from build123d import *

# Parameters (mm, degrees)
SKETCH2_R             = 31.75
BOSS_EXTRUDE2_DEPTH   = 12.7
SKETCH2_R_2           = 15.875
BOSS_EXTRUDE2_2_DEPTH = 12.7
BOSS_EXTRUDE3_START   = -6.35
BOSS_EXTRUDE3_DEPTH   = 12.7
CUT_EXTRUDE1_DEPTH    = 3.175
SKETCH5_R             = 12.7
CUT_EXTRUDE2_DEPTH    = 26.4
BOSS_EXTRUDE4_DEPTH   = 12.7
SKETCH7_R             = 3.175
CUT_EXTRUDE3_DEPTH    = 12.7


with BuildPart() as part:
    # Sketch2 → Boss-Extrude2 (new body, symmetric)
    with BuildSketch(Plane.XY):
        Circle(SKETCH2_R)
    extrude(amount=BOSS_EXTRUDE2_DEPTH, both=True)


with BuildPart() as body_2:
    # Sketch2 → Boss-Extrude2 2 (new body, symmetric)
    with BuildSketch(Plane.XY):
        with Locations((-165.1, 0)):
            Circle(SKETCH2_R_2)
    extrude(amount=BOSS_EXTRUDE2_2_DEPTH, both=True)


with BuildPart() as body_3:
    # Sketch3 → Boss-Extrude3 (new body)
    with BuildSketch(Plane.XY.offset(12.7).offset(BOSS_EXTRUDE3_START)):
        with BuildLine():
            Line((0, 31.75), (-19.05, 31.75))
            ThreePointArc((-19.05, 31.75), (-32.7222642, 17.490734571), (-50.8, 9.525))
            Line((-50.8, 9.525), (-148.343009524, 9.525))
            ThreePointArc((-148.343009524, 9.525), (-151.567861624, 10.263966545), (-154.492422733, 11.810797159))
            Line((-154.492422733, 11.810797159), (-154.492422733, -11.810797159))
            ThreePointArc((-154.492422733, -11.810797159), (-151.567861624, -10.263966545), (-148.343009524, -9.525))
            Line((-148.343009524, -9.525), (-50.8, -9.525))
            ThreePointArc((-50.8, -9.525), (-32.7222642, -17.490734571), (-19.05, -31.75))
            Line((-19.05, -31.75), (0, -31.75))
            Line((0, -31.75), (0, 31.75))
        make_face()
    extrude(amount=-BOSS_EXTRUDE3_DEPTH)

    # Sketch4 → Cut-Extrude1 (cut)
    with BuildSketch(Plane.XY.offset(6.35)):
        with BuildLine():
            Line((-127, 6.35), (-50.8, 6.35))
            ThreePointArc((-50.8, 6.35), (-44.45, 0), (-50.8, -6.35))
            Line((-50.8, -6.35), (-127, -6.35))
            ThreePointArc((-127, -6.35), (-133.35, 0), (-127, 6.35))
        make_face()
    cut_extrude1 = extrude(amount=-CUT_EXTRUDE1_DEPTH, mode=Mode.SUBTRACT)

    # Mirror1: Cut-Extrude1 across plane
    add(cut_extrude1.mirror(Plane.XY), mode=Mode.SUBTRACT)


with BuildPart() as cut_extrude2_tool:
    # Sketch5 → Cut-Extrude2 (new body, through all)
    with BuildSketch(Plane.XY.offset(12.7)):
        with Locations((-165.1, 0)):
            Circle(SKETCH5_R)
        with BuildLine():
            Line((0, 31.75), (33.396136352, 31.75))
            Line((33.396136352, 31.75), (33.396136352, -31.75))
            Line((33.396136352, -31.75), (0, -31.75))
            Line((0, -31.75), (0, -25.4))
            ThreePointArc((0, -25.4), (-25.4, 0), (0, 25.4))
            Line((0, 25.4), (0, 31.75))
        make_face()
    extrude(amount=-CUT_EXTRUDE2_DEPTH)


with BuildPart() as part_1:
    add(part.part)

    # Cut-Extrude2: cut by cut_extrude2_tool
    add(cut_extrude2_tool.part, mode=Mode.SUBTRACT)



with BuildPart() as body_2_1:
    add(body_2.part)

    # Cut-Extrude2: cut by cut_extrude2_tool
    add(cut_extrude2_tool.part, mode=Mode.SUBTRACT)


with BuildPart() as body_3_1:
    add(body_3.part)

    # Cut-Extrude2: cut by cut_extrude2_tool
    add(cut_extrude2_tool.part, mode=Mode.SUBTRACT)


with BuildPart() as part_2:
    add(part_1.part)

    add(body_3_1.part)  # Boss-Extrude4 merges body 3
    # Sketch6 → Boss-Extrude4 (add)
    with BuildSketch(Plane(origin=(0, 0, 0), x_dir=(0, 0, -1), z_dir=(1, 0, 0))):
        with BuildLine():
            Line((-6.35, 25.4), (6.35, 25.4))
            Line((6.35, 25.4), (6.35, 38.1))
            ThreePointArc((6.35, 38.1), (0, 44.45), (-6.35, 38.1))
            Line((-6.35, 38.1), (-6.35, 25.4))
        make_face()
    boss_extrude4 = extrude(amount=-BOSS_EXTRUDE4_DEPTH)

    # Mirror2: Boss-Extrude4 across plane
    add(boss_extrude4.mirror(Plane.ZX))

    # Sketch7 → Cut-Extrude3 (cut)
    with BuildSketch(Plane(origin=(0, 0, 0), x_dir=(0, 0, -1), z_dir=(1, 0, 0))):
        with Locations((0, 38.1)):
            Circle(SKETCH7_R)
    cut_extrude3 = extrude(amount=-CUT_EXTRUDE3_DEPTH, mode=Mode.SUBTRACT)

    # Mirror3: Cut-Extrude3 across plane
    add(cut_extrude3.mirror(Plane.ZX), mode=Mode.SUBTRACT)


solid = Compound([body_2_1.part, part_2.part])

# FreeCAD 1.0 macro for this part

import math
import FreeCAD as App
import Part
import Sketcher

V = App.Vector
Q = App.Units.Quantity

doc = App.newDocument("Part")
body = doc.addObject("PartDesign::Body", "Body")

# Sketch on XY plane
sketch1 = body.newObject("Sketcher::SketchObject", "Sketch")
sketch1.AttachmentSupport = (doc.getObject("XY_Plane"), [""])
sketch1.MapMode = "FlatFace"
sketch1.addGeometry(Part.Circle(V(0, 0, 0), V(0, 0, 1), 32), False)
sketch1.addConstraint(Sketcher.Constraint("Coincident", 0, 3, -1, 1))
sketch1.addConstraint(Sketcher.Constraint("Diameter", 0, Q("2.5 in")))
pad1 = body.newObject("PartDesign::Pad", "Pad")
pad1.Profile = sketch1
pad1.Length = Q("1 in")
pad1.Midplane = True
body2 = doc.addObject("PartDesign::Body", "Body001")

# Sketch on XY plane
sketch2 = body2.newObject("Sketcher::SketchObject", "Sketch001")
sketch2.AttachmentSupport = (doc.getObject("XY_Plane001"), [""])
sketch2.MapMode = "FlatFace"
sketch2.addGeometry(Part.Circle(V(-165, 0, 0), V(0, 0, 1), 16), False)
sketch2.addConstraint(Sketcher.Constraint("PointOnObject", 0, 3, -1))
sketch2.addConstraint(Sketcher.Constraint("Diameter", 0, Q("1.25 in")))
sketch2.addConstraint(Sketcher.Constraint("DistanceX", 0, 3, -1, 1, Q("6.5 in")))
pad2 = body2.newObject("PartDesign::Pad", "Pad001")
pad2.Profile = sketch2
pad2.Length = Q("1 in")
pad2.Midplane = True
body3 = doc.addObject("PartDesign::Body", "Body002")

# Sketch on XY plane
sketch3 = body3.newObject("Sketcher::SketchObject", "Sketch002")
sketch3.AttachmentSupport = (doc.getObject("XY_Plane002"), [""])
sketch3.MapMode = "FlatFace"
sketch3.AttachmentOffset = App.Placement(V(0, 0, 0.25 * 25.4), App.Rotation())
sketch3.addGeometry(Part.LineSegment(V(0, 32, 0), V(-19, 32, 0)), False)
sketch3.addGeometry(Part.ArcOfCircle(Part.Circle(V(-62, 59, 0), V(0, 0, 1), 51), math.radians(-77), math.radians(-33)), False)
sketch3.addGeometry(Part.LineSegment(V(-51, 10, 0), V(-148, 10, 0)), False)
sketch3.addGeometry(Part.ArcOfCircle(Part.Circle(V(-147, 22, 0), V(0, 0, 1), 13), math.radians(-125), math.radians(-95)), False)
sketch3.addGeometry(Part.LineSegment(V(-154, 12, 0), V(-154, -12, 0)), False)
sketch3.addGeometry(Part.ArcOfCircle(Part.Circle(V(-147, -22, 0), V(0, 0, 1), 13), math.radians(95), math.radians(125)), False)
sketch3.addGeometry(Part.LineSegment(V(-148, -10, 0), V(-51, -10, 0)), False)
sketch3.addGeometry(Part.ArcOfCircle(Part.Circle(V(-62, -59, 0), V(0, 0, 1), 51), math.radians(33), math.radians(77)), False)
sketch3.addGeometry(Part.LineSegment(V(-19, -32, 0), V(0, -32, 0)), False)
sketch3.addGeometry(Part.LineSegment(V(0, -32, 0), V(0, 32, 0)), False)
sketch3.addConstraint(Sketcher.Constraint("Coincident", 0, 2, 1, 2))
sketch3.addConstraint(Sketcher.Constraint("Coincident", 1, 1, 2, 1))
sketch3.addConstraint(Sketcher.Constraint("Coincident", 2, 2, 3, 2))
sketch3.addConstraint(Sketcher.Constraint("Coincident", 3, 1, 4, 1))
sketch3.addConstraint(Sketcher.Constraint("Coincident", 4, 2, 5, 2))
sketch3.addConstraint(Sketcher.Constraint("Coincident", 5, 1, 6, 1))
sketch3.addConstraint(Sketcher.Constraint("Coincident", 6, 2, 7, 2))
sketch3.addConstraint(Sketcher.Constraint("Coincident", 7, 1, 8, 1))
sketch3.addConstraint(Sketcher.Constraint("Coincident", 8, 2, 9, 1))
sketch3.addConstraint(Sketcher.Constraint("Coincident", 9, 2, 0, 1))
sketch3.addConstraint(Sketcher.Constraint("Horizontal", 0))
sketch3.addConstraint(Sketcher.Constraint("Horizontal", 2))
sketch3.addConstraint(Sketcher.Constraint("Vertical", 4))
sketch3.addConstraint(Sketcher.Constraint("Horizontal", 6))
sketch3.addConstraint(Sketcher.Constraint("Horizontal", 8))
sketch3.addConstraint(Sketcher.Constraint("Vertical", 9))
sketch3.addConstraint(Sketcher.Constraint("Equal", 3, 5))
sketch3.addConstraint(Sketcher.Constraint("Equal", 1, 7))
sketch3.addConstraint(Sketcher.Constraint("Symmetric", 8, 2, 9, 2, -1, 1))
sketch3.addConstraint(Sketcher.Constraint("Symmetric", 3, 3, 5, 3, -1))
sketch3.addConstraint(Sketcher.Constraint("Symmetric", 1, 3, 7, 3, -1))
sketch3.addConstraint(Sketcher.Constraint("Vertical", 2, 2, 5, 1))
sketch3.addConstraint(Sketcher.Constraint("Radius", 1, Q("2 in")))
sketch3.addConstraint(Sketcher.Constraint("Radius", 3, Q("0.5 in")))
sketch3.addConstraint(Sketcher.Constraint("DistanceY", 9, 1, 9, 2, Q("2.5 in")))
sketch3.addConstraint(Sketcher.Constraint("DistanceX", 1, 1, -1, 1, Q("2 in")))
sketch3.addConstraint(Sketcher.Constraint("DistanceX", 0, 2, 0, 1, Q("0.75 in")))
sketch3.addConstraint(Sketcher.Constraint("DistanceY", 5, 1, 2, 2, Q("0.75 in")))
sketch3.addConstraint(Sketcher.Constraint("DistanceX", 2, 2, 2, 1, 97.54301))
sketch3.addConstraint(Sketcher.Constraint("DistanceX", 3, 3, 1, 3, 85.2888))
sketch3.addConstraint(Sketcher.Constraint("DistanceY", 4, 2, 4, 1, 23.621594))
pad3 = body3.newObject("PartDesign::Pad", "Pad002")
pad3.Profile = sketch3
pad3.Length = Q("0.5 in")
pad3.Reversed = True

# Sketch on XY plane
sketch4 = body3.newObject("Sketcher::SketchObject", "Sketch003")
sketch4.AttachmentSupport = (doc.getObject("XY_Plane002"), [""])
sketch4.MapMode = "FlatFace"
sketch4.AttachmentOffset = App.Placement(V(0, 0, 0.25 * 25.4), App.Rotation())
sketch4.addGeometry(Part.LineSegment(V(-51, 6, 0), V(-127, 6, 0)), False)
sketch4.addGeometry(Part.ArcOfCircle(Part.Circle(V(-127, 0, 0), V(0, 0, 1), 6), math.radians(90), math.radians(270)), False)
sketch4.addGeometry(Part.LineSegment(V(-127, -6, 0), V(-51, -6, 0)), False)
sketch4.addGeometry(Part.ArcOfCircle(Part.Circle(V(-51, 0, 0), V(0, 0, 1), 6), math.radians(-90), math.radians(90)), False)
sketch4.addConstraint(Sketcher.Constraint("Tangent", 0, 2, 1, 1))
sketch4.addConstraint(Sketcher.Constraint("Tangent", 1, 2, 2, 1))
sketch4.addConstraint(Sketcher.Constraint("Tangent", 2, 2, 3, 1))
sketch4.addConstraint(Sketcher.Constraint("Tangent", 3, 2, 0, 1))
sketch4.addConstraint(Sketcher.Constraint("Horizontal", 0))
sketch4.addConstraint(Sketcher.Constraint("Horizontal", 2))
sketch4.addConstraint(Sketcher.Constraint("PointOnObject", 1, 3, -1))
sketch4.addConstraint(Sketcher.Constraint("DistanceX", 0, 2, 0, 1, Q("3 in")))
sketch4.addConstraint(Sketcher.Constraint("Radius", 1, Q("0.25 in")))
sketch4.addConstraint(Sketcher.Constraint("DistanceX", 1, 3, -1, 1, Q("5 in")))
pocket1 = body3.newObject("PartDesign::Pocket", "Pocket")
pocket1.Profile = sketch4
pocket1.Length = Q("0.125 in")
doc.recompute()

mirrored = body3.newObject("PartDesign::Mirrored", "Mirrored")
mirrored.Originals = [pocket1]
mirrored.MirrorPlane = (doc.getObject("XY_Plane002"), [""])
body3.Tip = mirrored
body4 = doc.addObject("PartDesign::Body", "Body003")
body4.AllowCompound = True

# Sketch on XY plane
sketch5 = body4.newObject("Sketcher::SketchObject", "Sketch004")
sketch5.AttachmentSupport = (doc.getObject("XY_Plane003"), [""])
sketch5.MapMode = "FlatFace"
sketch5.AttachmentOffset = App.Placement(V(0, 0, 0.5 * 25.4), App.Rotation())
sketch5.addGeometry(Part.Circle(V(-165, 0, 0), V(0, 0, 1), 13), False)
sketch5.addGeometry(Part.LineSegment(V(33, 32, 0), V(0, 32, 0)), False)
sketch5.addGeometry(Part.LineSegment(V(0, 32, 0), V(0, 25, 0)), False)
sketch5.addGeometry(Part.ArcOfCircle(Part.Circle(V(0, 0, 0), V(0, 0, 1), 25), math.radians(90), math.radians(270)), False)
sketch5.addGeometry(Part.LineSegment(V(0, -25, 0), V(0, -32, 0)), False)
sketch5.addGeometry(Part.LineSegment(V(0, -32, 0), V(33, -32, 0)), False)
sketch5.addGeometry(Part.LineSegment(V(33, -32, 0), V(33, 32, 0)), False)
sketch5.addConstraint(Sketcher.Constraint("Coincident", 1, 2, 2, 1))
sketch5.addConstraint(Sketcher.Constraint("Coincident", 2, 2, 3, 1))
sketch5.addConstraint(Sketcher.Constraint("Coincident", 3, 2, 4, 1))
sketch5.addConstraint(Sketcher.Constraint("Coincident", 4, 2, 5, 1))
sketch5.addConstraint(Sketcher.Constraint("Coincident", 5, 2, 6, 1))
sketch5.addConstraint(Sketcher.Constraint("Coincident", 6, 2, 1, 1))
sketch5.addConstraint(Sketcher.Constraint("Horizontal", 1))
sketch5.addConstraint(Sketcher.Constraint("Vertical", 2))
sketch5.addConstraint(Sketcher.Constraint("Vertical", 4))
sketch5.addConstraint(Sketcher.Constraint("Horizontal", 5))
sketch5.addConstraint(Sketcher.Constraint("Vertical", 6))
sketch5.addConstraint(Sketcher.Constraint("Coincident", 3, 3, -1, 1))
sketch5.addConstraint(Sketcher.Constraint("Symmetric", 1, 2, 4, 2, -1, 1))
sketch5.addConstraint(Sketcher.Constraint("PointOnObject", 0, 3, -1))
sketch5.addConstraint(Sketcher.Constraint("PointOnObject", 1, 2, -2))
sketch5.addConstraint(Sketcher.Constraint("Diameter", 0, Q("1 in")))
sketch5.addConstraint(Sketcher.Constraint("Radius", 3, Q("1 in")))
sketch5.addConstraint(Sketcher.Constraint("DistanceY", 6, 1, 6, 2, Q("2.5 in")))
sketch5.addConstraint(Sketcher.Constraint("DistanceX", 0, 3, -1, 1, Q("6.5 in")))
sketch5.addConstraint(Sketcher.Constraint("DistanceX", 1, 2, 1, 1, 33.396136))
pad4 = body4.newObject("PartDesign::Pad", "Pad003")
pad4.Profile = sketch5
pad4.Length = 26.4
pad4.Reversed = True
doc.recompute()

body5 = doc.addObject("PartDesign::Body", "Body004")
body5.BaseFeature = body4
boolean = body.newObject("PartDesign::Boolean", "Boolean")
boolean.Type = "Cut"
boolean.addObjects([body5])
doc.recompute()

body6 = doc.addObject("PartDesign::Body", "Body005")
body6.BaseFeature = body4
boolean2 = body2.newObject("PartDesign::Boolean", "Boolean001")
boolean2.Type = "Cut"
boolean2.addObjects([body6])
doc.recompute()

boolean3 = body3.newObject("PartDesign::Boolean", "Boolean002")
boolean3.Type = "Cut"
boolean3.addObjects([body4])
doc.recompute()

boolean4 = body.newObject("PartDesign::Boolean", "Boolean003")
boolean4.Type = "Fuse"
boolean4.addObjects([body3])

# Sketch on YZ plane
sketch6 = body.newObject("Sketcher::SketchObject", "Sketch005")
sketch6.AttachmentSupport = (doc.getObject("YZ_Plane"), [""])
sketch6.MapMode = "FlatFace"
sketch6.addGeometry(Part.LineSegment(V(25, 6, 0), V(25, -6, 0)), False)
sketch6.addGeometry(Part.LineSegment(V(25, -6, 0), V(38, -6, 0)), False)
sketch6.addGeometry(Part.ArcOfCircle(Part.Circle(V(38, 0, 0), V(0, 0, 1), 6), math.radians(-90), math.radians(90)), False)
sketch6.addGeometry(Part.LineSegment(V(38, 6, 0), V(25, 6, 0)), False)
sketch6.addConstraint(Sketcher.Constraint("Coincident", 0, 2, 1, 1))
sketch6.addConstraint(Sketcher.Constraint("Tangent", 1, 2, 2, 1))
sketch6.addConstraint(Sketcher.Constraint("Tangent", 2, 2, 3, 1))
sketch6.addConstraint(Sketcher.Constraint("Coincident", 3, 2, 0, 1))
sketch6.addConstraint(Sketcher.Constraint("Vertical", 0))
sketch6.addConstraint(Sketcher.Constraint("Horizontal", 1))
sketch6.addConstraint(Sketcher.Constraint("Horizontal", 3))
sketch6.addConstraint(Sketcher.Constraint("PointOnObject", 2, 3, -1))
sketch6.addConstraint(Sketcher.Constraint("Equal", 3, 0))
sketch6.addConstraint(Sketcher.Constraint("Radius", 2, Q("0.25 in")))
sketch6.addConstraint(Sketcher.Constraint("DistanceX", -1, 1, 0, 2, Q("1 in")))
pad5 = body.newObject("PartDesign::Pad", "Pad004")
pad5.Profile = sketch6
pad5.Length = Q("0.5 in")
pad5.Reversed = True
doc.recompute()

mirrored2 = body.newObject("PartDesign::Mirrored", "Mirrored001")
mirrored2.Originals = [pad5]
mirrored2.MirrorPlane = (doc.getObject("XZ_Plane"), [""])
body.Tip = mirrored2

# Sketch on YZ plane
sketch7 = body.newObject("Sketcher::SketchObject", "Sketch006")
sketch7.AttachmentSupport = (doc.getObject("YZ_Plane"), [""])
sketch7.MapMode = "FlatFace"
sketch7.addGeometry(Part.Circle(V(38.1, 0, 0), V(0, 0, 1), 3.2), False)
sketch7.addConstraint(Sketcher.Constraint("PointOnObject", 0, 3, -1))
sketch7.addConstraint(Sketcher.Constraint("Diameter", 0, Q("0.25 in")))
sketch7.addConstraint(Sketcher.Constraint("DistanceX", -1, 1, 0, 3, Q("1.5 in")))
pocket2 = body.newObject("PartDesign::Pocket", "Pocket001")
pocket2.Profile = sketch7
pocket2.Length = Q("0.5 in")
doc.recompute()

mirrored3 = body.newObject("PartDesign::Mirrored", "Mirrored002")
mirrored3.Originals = [pocket2]
mirrored3.MirrorPlane = (doc.getObject("XZ_Plane"), [""])
body.Tip = mirrored3

doc.recompute()
